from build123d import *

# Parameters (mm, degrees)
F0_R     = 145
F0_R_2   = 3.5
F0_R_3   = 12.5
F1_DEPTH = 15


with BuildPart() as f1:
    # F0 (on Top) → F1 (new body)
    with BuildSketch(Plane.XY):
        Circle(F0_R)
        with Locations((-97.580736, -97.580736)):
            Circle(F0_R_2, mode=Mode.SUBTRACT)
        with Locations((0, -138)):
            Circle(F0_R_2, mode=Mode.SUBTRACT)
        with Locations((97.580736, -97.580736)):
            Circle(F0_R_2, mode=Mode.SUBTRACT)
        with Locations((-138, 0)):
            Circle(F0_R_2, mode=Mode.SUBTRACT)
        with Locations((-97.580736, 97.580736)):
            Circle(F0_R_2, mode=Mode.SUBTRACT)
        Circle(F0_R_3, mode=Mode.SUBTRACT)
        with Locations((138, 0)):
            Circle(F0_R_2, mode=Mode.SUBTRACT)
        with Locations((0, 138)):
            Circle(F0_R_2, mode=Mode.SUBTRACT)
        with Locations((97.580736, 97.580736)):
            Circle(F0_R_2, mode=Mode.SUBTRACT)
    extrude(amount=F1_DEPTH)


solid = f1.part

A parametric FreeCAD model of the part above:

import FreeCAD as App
import Part
import Sketcher

doc = App.newDocument("Part")
body = doc.addObject("PartDesign::Body", "Body")

# Sketch on XY plane
sketch1 = body.newObject("Sketcher::SketchObject", "Sketch")
sketch1.AttachmentSupport = (doc.getObject("XY_Plane"), [""])
sketch1.MapMode = "FlatFace"
sketch1.addGeometry([
    Part.Circle(App.Vector(0, 0, 0), App.Vector(0, 0, 1), 145),  # 0
    Part.Circle(App.Vector(-97.580736, -97.580736, 0), App.Vector(0, 0, 1), 3.5),  # 1
    Part.Circle(App.Vector(0, -138, 0), App.Vector(0, 0, 1), 3.5),  # 2
    Part.Circle(App.Vector(97.580736, -97.580736, 0), App.Vector(0, 0, 1), 3.5),  # 3
    Part.Circle(App.Vector(-138, 0, 0), App.Vector(0, 0, 1), 3.5),  # 4
    Part.Circle(App.Vector(-97.580736, 97.580736, 0), App.Vector(0, 0, 1), 3.5),  # 5
    Part.Circle(App.Vector(0, 0, 0), App.Vector(0, 0, 1), 12.5),  # 6
    Part.Circle(App.Vector(138, 0, 0), App.Vector(0, 0, 1), 3.5),  # 7
    Part.Circle(App.Vector(0, 138, 0), App.Vector(0, 0, 1), 3.5),  # 8
    Part.Circle(App.Vector(97.580736, 97.580736, 0), App.Vector(0, 0, 1), 3.5),  # 9
], False)
sketch1.addConstraint([
    Sketcher.Constraint("Coincident", 0, 3, -1, 1),
    Sketcher.Constraint("Coincident", 6, 3, -1, 1),
    Sketcher.Constraint("Equal", 1, 2),
    Sketcher.Constraint("Equal", 2, 3),
    Sketcher.Constraint("Equal", 3, 4),
    Sketcher.Constraint("Equal", 4, 5),
    Sketcher.Constraint("Equal", 5, 7),
    Sketcher.Constraint("Equal", 7, 8),
    Sketcher.Constraint("Equal", 8, 9),
    Sketcher.Constraint("Symmetric", 3, 3, 5, 3, -1, 1),
    Sketcher.Constraint("Symmetric", 4, 3, 7, 3, -1, 1),
    Sketcher.Constraint("Symmetric", 2, 3, 8, 3, -1, 1),
    Sketcher.Constraint("Symmetric", 1, 3, 9, 3, -1, 1),
    Sketcher.Constraint("Symmetric", 1, 3, 3, 3, -2),
    Sketcher.Constraint("PointOnObject", 2, 3, -2),
    Sketcher.Constraint("PointOnObject", 4, 3, -1),
    Sketcher.Constraint("Diameter", 0, 290.0),
    Sketcher.Constraint("Diameter", 1, 7.0),
    Sketcher.Constraint("Diameter", 6, 25.0),
    Sketcher.Constraint("DistanceY", 2, 3, -1, 1, 138.0),
    Sketcher.Constraint("DistanceX", 4, 3, -1, 1, 138.0),
    Sketcher.Constraint("DistanceX", 1, 3, 3, 3, 195.161472),
    Sketcher.Constraint("DistanceY", 1, 3, 5, 3, 195.161472),
])
pad1 = body.newObject("PartDesign::Pad", "Pad")
pad1.Profile = sketch1
pad1.Length = 15

doc.recompute()
